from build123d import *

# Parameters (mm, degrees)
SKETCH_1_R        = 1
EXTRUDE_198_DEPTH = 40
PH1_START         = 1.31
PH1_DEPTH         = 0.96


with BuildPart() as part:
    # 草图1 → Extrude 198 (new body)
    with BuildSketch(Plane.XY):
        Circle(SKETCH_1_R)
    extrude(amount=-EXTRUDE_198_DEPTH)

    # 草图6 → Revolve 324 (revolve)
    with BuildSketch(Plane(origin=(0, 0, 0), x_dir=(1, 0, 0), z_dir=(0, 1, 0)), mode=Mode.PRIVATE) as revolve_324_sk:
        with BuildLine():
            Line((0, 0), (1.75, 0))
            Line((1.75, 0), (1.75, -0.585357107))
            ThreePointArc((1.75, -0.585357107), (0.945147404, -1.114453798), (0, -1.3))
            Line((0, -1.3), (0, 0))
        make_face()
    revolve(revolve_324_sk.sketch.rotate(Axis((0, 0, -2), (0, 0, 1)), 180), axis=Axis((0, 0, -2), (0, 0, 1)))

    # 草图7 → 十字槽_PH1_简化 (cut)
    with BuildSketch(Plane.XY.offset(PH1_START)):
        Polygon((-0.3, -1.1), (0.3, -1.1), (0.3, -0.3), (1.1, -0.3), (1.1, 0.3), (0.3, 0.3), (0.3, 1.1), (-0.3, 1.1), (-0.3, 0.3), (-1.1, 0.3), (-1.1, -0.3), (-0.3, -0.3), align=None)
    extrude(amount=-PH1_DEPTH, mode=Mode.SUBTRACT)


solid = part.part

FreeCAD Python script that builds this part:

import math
import FreeCAD as App
import Part
import Sketcher
from FreeCAD import Vector

doc = App.newDocument("Part")
body = doc.addObject("PartDesign::Body", "Body")

# Sketch on XY plane
sketch1 = doc.addObject("Sketcher::SketchObject", "Sketch")
body.addObject(sketch1)
sketch1.AttachmentSupport = (doc.XY_Plane, [""])
sketch1.MapMode = "FlatFace"
sketch1.addGeometry(Part.Circle(Vector(0, 0, 0), Vector(0, 0, 1), 1), False)
sketch1.addConstraint(Sketcher.Constraint("Coincident", 0, 3, -1, 1))
sketch1.addConstraint(Sketcher.Constraint("Diameter", 0, 2.0))
pad1 = doc.addObject("PartDesign::Pad", "Pad")
body.addObject(pad1)
pad1.Profile = sketch1
pad1.Length = 40
pad1.Reversed = True

# Sketch on XZ plane
sketch2 = doc.addObject("Sketcher::SketchObject", "Sketch001")
body.addObject(sketch2)
sketch2.AttachmentSupport = (doc.XZ_Plane, [""])
sketch2.MapMode = "FlatFace"
sketch2.addGeometry(Part.LineSegment(Vector(1.75, 0, 0), Vector(0, 0, 0)), False)
sketch2.addGeometry(Part.LineSegment(Vector(0, 0, 0), Vector(0, 1.3, 0)), False)
sketch2.addGeometry(Part.ArcOfCircle(Part.Circle(Vector(0, -1.2, 0), Vector(0, 0, 1), 2.5), math.radians(45.572996), math.radians(90)), False)
sketch2.addGeometry(Part.LineSegment(Vector(1.75, 0.585357, 0), Vector(1.75, 0, 0)), False)
sketch2.addConstraint(Sketcher.Constraint("Coincident", 0, 2, 1, 1))
sketch2.addConstraint(Sketcher.Constraint("Coincident", 1, 2, 2, 2))
sketch2.addConstraint(Sketcher.Constraint("Coincident", 2, 1, 3, 1))
sketch2.addConstraint(Sketcher.Constraint("Coincident", 3, 2, 0, 1))
sketch2.addConstraint(Sketcher.Constraint("Horizontal", 0))
sketch2.addConstraint(Sketcher.Constraint("Vertical", 1))
sketch2.addConstraint(Sketcher.Constraint("Vertical", 3))
sketch2.addConstraint(Sketcher.Constraint("Coincident", 0, 2, -1, 1))
sketch2.addConstraint(Sketcher.Constraint("PointOnObject", 2, 3, -2))
sketch2.addConstraint(Sketcher.Constraint("Radius", 2, 2.5))
sketch2.addConstraint(Sketcher.Constraint("DistanceY", 1, 1, 1, 2, 1.3))
sketch2.addConstraint(Sketcher.Constraint("DistanceX", 0, 2, 0, 1, 1.75))
revolution = doc.addObject("PartDesign::Revolution", "Revolution")
body.addObject(revolution)
revolution.Profile = sketch2
revolution.ReferenceAxis = (sketch2, ["V_Axis"])
revolution.Angle = 360

# Sketch on XY plane
sketch3 = doc.addObject("Sketcher::SketchObject", "Sketch002")
body.addObject(sketch3)
sketch3.AttachmentSupport = (doc.XY_Plane, [""])
sketch3.MapMode = "FlatFace"
sketch3.AttachmentOffset = App.Placement(Vector(0, 0, 1.31), App.Rotation())
sketch3.addGeometry(Part.LineSegment(Vector(-0.3, -1.1, 0), Vector(0.3, -1.1, 0)), False)
sketch3.addGeometry(Part.LineSegment(Vector(0.3, -1.1, 0), Vector(0.3, -0.3, 0)), False)
sketch3.addGeometry(Part.LineSegment(Vector(0.3, -0.3, 0), Vector(1.1, -0.3, 0)), False)
sketch3.addGeometry(Part.LineSegment(Vector(1.1, -0.3, 0), Vector(1.1, 0.3, 0)), False)
sketch3.addGeometry(Part.LineSegment(Vector(1.1, 0.3, 0), Vector(0.3, 0.3, 0)), False)
sketch3.addGeometry(Part.LineSegment(Vector(0.3, 0.3, 0), Vector(0.3, 1.1, 0)), False)
sketch3.addGeometry(Part.LineSegment(Vector(0.3, 1.1, 0), Vector(-0.3, 1.1, 0)), False)
sketch3.addGeometry(Part.LineSegment(Vector(-0.3, 1.1, 0), Vector(-0.3, 0.3, 0)), False)
sketch3.addGeometry(Part.LineSegment(Vector(-0.3, 0.3, 0), Vector(-1.1, 0.3, 0)), False)
sketch3.addGeometry(Part.LineSegment(Vector(-1.1, 0.3, 0), Vector(-1.1, -0.3, 0)), False)
sketch3.addGeometry(Part.LineSegment(Vector(-1.1, -0.3, 0), Vector(-0.3, -0.3, 0)), False)
sketch3.addGeometry(Part.LineSegment(Vector(-0.3, -0.3, 0), Vector(-0.3, -1.1, 0)), False)
sketch3.addConstraint(Sketcher.Constraint("Coincident", 0, 2, 1, 1))
sketch3.addConstraint(Sketcher.Constraint("Coincident", 1, 2, 2, 1))
sketch3.addConstraint(Sketcher.Constraint("Coincident", 2, 2, 3, 1))
sketch3.addConstraint(Sketcher.Constraint("Coincident", 3, 2, 4, 1))
sketch3.addConstraint(Sketcher.Constraint("Coincident", 4, 2, 5, 1))
sketch3.addConstraint(Sketcher.Constraint("Coincident", 5, 2, 6, 1))
sketch3.addConstraint(Sketcher.Constraint("Coincident", 6, 2, 7, 1))
sketch3.addConstraint(Sketcher.Constraint("Coincident", 7, 2, 8, 1))
sketch3.addConstraint(Sketcher.Constraint("Coincident", 8, 2, 9, 1))
sketch3.addConstraint(Sketcher.Constraint("Coincident", 9, 2, 10, 1))
sketch3.addConstraint(Sketcher.Constraint("Coincident", 10, 2, 11, 1))
sketch3.addConstraint(Sketcher.Constraint("Coincident", 11, 2, 0, 1))
sketch3.addConstraint(Sketcher.Constraint("Horizontal", 0))
sketch3.addConstraint(Sketcher.Constraint("Vertical", 1))
sketch3.addConstraint(Sketcher.Constraint("Horizontal", 2))
sketch3.addConstraint(Sketcher.Constraint("Vertical", 3))
sketch3.addConstraint(Sketcher.Constraint("Horizontal", 4))
sketch3.addConstraint(Sketcher.Constraint("Vertical", 5))
sketch3.addConstraint(Sketcher.Constraint("Horizontal", 6))
sketch3.addConstraint(Sketcher.Constraint("Vertical", 7))
sketch3.addConstraint(Sketcher.Constraint("Horizontal", 8))
sketch3.addConstraint(Sketcher.Constraint("Vertical", 9))
sketch3.addConstraint(Sketcher.Constraint("Horizontal", 10))
sketch3.addConstraint(Sketcher.Constraint("Vertical", 11))
sketch3.addConstraint(Sketcher.Constraint("Symmetric", 0, 2, 6, 2, -1, 1))
sketch3.addConstraint(Sketcher.Constraint("Symmetric", 2, 2, 8, 2, -1, 1))
sketch3.addConstraint(Sketcher.Constraint("Symmetric", 4, 2, 10, 2, -1, 1))
sketch3.addConstraint(Sketcher.Constraint("Symmetric", 4, 2, 7, 2, -2))
sketch3.addConstraint(Sketcher.Constraint("Equal", 10, 1))
sketch3.addConstraint(Sketcher.Constraint("Equal", 6, 3))
sketch3.addConstraint(Sketcher.Constraint("DistanceX", 0, 1, 0, 2, 0.6))
sketch3.addConstraint(Sketcher.Constraint("DistanceX", 2, 1, 2, 2, 0.8))
pocket1 = doc.addObject("PartDesign::Pocket", "Pocket")
body.addObject(pocket1)
pocket1.Profile = sketch3
pocket1.Length = 0.96

doc.recompute()
